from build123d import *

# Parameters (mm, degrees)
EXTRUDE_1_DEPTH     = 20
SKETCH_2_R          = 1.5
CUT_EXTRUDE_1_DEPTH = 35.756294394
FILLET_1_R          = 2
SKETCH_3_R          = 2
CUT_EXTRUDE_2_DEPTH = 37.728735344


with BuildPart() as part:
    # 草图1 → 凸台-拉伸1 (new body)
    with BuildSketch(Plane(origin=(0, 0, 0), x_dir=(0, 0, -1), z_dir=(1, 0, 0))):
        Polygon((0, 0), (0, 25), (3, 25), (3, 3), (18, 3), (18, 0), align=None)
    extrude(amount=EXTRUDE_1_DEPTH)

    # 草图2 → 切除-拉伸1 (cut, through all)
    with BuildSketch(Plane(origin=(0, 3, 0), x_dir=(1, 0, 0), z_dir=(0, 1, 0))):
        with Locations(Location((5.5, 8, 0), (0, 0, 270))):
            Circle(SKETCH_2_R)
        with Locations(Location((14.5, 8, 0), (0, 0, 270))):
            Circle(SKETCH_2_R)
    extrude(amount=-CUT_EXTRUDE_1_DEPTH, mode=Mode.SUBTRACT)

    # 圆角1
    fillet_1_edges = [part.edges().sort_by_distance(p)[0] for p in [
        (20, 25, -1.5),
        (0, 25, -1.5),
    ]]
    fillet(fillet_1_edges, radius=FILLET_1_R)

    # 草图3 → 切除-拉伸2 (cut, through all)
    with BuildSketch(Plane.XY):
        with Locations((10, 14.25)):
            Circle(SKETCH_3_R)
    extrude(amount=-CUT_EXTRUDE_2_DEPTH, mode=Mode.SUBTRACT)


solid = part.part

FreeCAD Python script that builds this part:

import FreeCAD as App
import Part
import Sketcher
from FreeCAD import Vector


def edges_at(feature, points):
    """Names of the edges that pass closest to the given points."""
    edges = feature.Shape.Edges
    near = lambda p: min(range(len(edges)), key=lambda i: edges[i].distToShape(Part.Vertex(*p))[0])
    return sorted({f"Edge{near(p) + 1}" for p in points})

doc = App.newDocument("Part")
body = doc.addObject("PartDesign::Body", "Body")

sketch1 = body.newObject("Sketcher::SketchObject", "Sketch")
sketch1.AttachmentSupport = (doc.getObject("YZ_Plane"), [""])
sketch1.MapMode = "FlatFace"
sketch1.addGeometry(Part.LineSegment(Vector(25, 0, 0), Vector(0, 0, 0)), False)
sketch1.addGeometry(Part.LineSegment(Vector(0, 0, 0), Vector(0, -18, 0)), False)
sketch1.addGeometry(Part.LineSegment(Vector(0, -18, 0), Vector(3, -18, 0)), False)
sketch1.addGeometry(Part.LineSegment(Vector(3, -18, 0), Vector(3, -3, 0)), False)
sketch1.addGeometry(Part.LineSegment(Vector(3, -3, 0), Vector(25, -3, 0)), False)
sketch1.addGeometry(Part.LineSegment(Vector(25, -3, 0), Vector(25, 0, 0)), False)
sketch1.addConstraint(Sketcher.Constraint("Coincident", 0, 2, 1, 1))
sketch1.addConstraint(Sketcher.Constraint("Coincident", 1, 2, 2, 1))
sketch1.addConstraint(Sketcher.Constraint("Coincident", 2, 2, 3, 1))
sketch1.addConstraint(Sketcher.Constraint("Coincident", 3, 2, 4, 1))
sketch1.addConstraint(Sketcher.Constraint("Coincident", 4, 2, 5, 1))
sketch1.addConstraint(Sketcher.Constraint("Coincident", 5, 2, 0, 1))
sketch1.addConstraint(Sketcher.Constraint("Horizontal", 0))
sketch1.addConstraint(Sketcher.Constraint("Vertical", 1))
sketch1.addConstraint(Sketcher.Constraint("Horizontal", 2))
sketch1.addConstraint(Sketcher.Constraint("Vertical", 3))
sketch1.addConstraint(Sketcher.Constraint("Horizontal", 4))
sketch1.addConstraint(Sketcher.Constraint("Vertical", 5))
sketch1.addConstraint(Sketcher.Constraint("Coincident", 0, 2, -1, 1))
sketch1.addConstraint(Sketcher.Constraint("Equal", 2, 5))
sketch1.addConstraint(Sketcher.Constraint("DistanceX", 0, 2, 0, 1, 25.0))
sketch1.addConstraint(Sketcher.Constraint("DistanceX", 2, 1, 2, 2, 3.0))
sketch1.addConstraint(Sketcher.Constraint("DistanceY", 1, 2, 1, 1, 18.0))
pad1 = body.newObject("PartDesign::Pad", "Pad")
pad1.Profile = sketch1
pad1.Length = 20

sketch2 = body.newObject("Sketcher::SketchObject", "Sketch001")
sketch2.AttachmentSupport = (doc.getObject("XZ_Plane"), [""])
sketch2.MapMode = "FlatFace"
sketch2.AttachmentOffset = App.Placement(Vector(0, 0, -3), App.Rotation())
sketch2.addGeometry(Part.Circle(Vector(5.5, -8, 0), Vector(0, 0, 1), 1.5), False)
sketch2.addGeometry(Part.Circle(Vector(14.5, -8, 0), Vector(0, 0, 1), 1.5), False)
sketch2.addConstraint(Sketcher.Constraint("Equal", 0, 1))
sketch2.addConstraint(Sketcher.Constraint("Horizontal", 0, 3, 1, 3))
sketch2.addConstraint(Sketcher.Constraint("Diameter", 0, 3.0))
sketch2.addConstraint(Sketcher.Constraint("DistanceY", 0, 3, -1, 1, 8.0))
sketch2.addConstraint(Sketcher.Constraint("DistanceX", 0, 3, 1, 3, 9.0))
sketch2.addConstraint(Sketcher.Constraint("DistanceX", -1, 1, 0, 3, 5.5))
pocket1 = body.newObject("PartDesign::Pocket", "Pocket")
pocket1.Profile = sketch2
pocket1.Type = "ThroughAll"
pocket1.Reversed = True
doc.recompute()

fillet = body.newObject("PartDesign::Fillet", "Fillet")
fillet.Base = (pocket1, edges_at(pocket1, [(20, 25, -1.5), (0, 25, -1.5)]))
fillet.Radius = 2

sketch3 = body.newObject("Sketcher::SketchObject", "Sketch002")
sketch3.AttachmentSupport = (doc.getObject("XY_Plane"), [""])
sketch3.MapMode = "FlatFace"
sketch3.addGeometry(Part.Circle(Vector(10, 14.2, 0), Vector(0, 0, 1), 2), False)
sketch3.addConstraint(Sketcher.Constraint("Diameter", 0, 4.0))
sketch3.addConstraint(Sketcher.Constraint("DistanceX", -1, 1, 0, 3, 10.0))
sketch3.addConstraint(Sketcher.Constraint("DistanceY", -1, 1, 0, 3, 14.25))
pocket2 = body.newObject("PartDesign::Pocket", "Pocket001")
pocket2.Profile = sketch3
pocket2.Type = "ThroughAll"

doc.recompute()
